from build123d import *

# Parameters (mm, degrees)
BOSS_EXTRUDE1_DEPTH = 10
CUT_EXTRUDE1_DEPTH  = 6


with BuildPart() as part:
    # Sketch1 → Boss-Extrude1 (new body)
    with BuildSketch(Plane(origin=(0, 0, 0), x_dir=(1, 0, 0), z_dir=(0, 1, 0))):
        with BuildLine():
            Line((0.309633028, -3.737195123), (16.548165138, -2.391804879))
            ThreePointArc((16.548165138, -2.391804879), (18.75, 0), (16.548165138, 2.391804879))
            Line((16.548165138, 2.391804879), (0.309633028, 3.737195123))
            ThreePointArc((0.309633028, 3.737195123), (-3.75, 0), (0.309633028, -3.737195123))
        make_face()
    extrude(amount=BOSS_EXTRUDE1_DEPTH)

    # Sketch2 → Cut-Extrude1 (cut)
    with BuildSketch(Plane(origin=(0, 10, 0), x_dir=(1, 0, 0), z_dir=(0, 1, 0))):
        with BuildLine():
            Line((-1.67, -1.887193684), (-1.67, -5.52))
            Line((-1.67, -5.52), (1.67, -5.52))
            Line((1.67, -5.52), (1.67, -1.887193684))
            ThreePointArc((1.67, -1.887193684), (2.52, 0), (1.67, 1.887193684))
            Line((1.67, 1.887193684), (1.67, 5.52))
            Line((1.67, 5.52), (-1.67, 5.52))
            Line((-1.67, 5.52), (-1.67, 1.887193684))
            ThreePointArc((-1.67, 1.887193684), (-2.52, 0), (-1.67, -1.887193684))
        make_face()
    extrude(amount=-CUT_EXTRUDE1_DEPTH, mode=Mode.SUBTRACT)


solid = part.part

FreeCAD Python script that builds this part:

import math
import FreeCAD as App
import Part
import Sketcher

V = App.Vector

doc = App.newDocument("Part")
body = doc.addObject("PartDesign::Body", "Body")

sketch1 = body.newObject("Sketcher::SketchObject", "Sketch")
sketch1.AttachmentSupport = (doc.getObject("XZ_Plane"), [""])
sketch1.MapMode = "FlatFace"
sketch1.addGeometry(Part.LineSegment(V(0.3, 3.7, 0), V(16.5, 2.4, 0)), False)
sketch1.addGeometry(Part.ArcOfCircle(Part.Circle(V(16.4, 0, 0), V(0, 0, 1), 2.4), math.radians(-85), math.radians(85)), False)
sketch1.addGeometry(Part.LineSegment(V(16.5, -2.4, 0), V(0.3, -3.7, 0)), False)
sketch1.addGeometry(Part.ArcOfCircle(Part.Circle(V(0, 0, 0), V(0, 0, 1), 3.8), math.radians(85), math.radians(275)), False)
sketch1.addConstraint(Sketcher.Constraint("Tangent", 0, 2, 1, 2))
sketch1.addConstraint(Sketcher.Constraint("Tangent", 1, 1, 2, 1))
sketch1.addConstraint(Sketcher.Constraint("Tangent", 2, 2, 3, 2))
sketch1.addConstraint(Sketcher.Constraint("Tangent", 3, 1, 0, 1))
sketch1.addConstraint(Sketcher.Constraint("Coincident", 3, 3, -1, 1))
sketch1.addConstraint(Sketcher.Constraint("PointOnObject", 1, 3, -1))
sketch1.addConstraint(Sketcher.Constraint("Radius", 1, 2.4))
sketch1.addConstraint(Sketcher.Constraint("Radius", 3, 3.75))
sketch1.addConstraint(Sketcher.Constraint("DistanceX", -1, 1, 1, 3, 16.35))
pad1 = body.newObject("PartDesign::Pad", "Pad")
pad1.Profile = sketch1
pad1.Length = 10
pad1.Reversed = True

sketch2 = body.newObject("Sketcher::SketchObject", "Sketch001")
sketch2.AttachmentSupport = (doc.getObject("XZ_Plane"), [""])
sketch2.MapMode = "FlatFace"
sketch2.AttachmentOffset = App.Placement(V(0, 0, -10), App.Rotation())
sketch2.addGeometry(Part.LineSegment(V(-1.7, 1.9, 0), V(-1.7, 5.5, 0)), False)
sketch2.addGeometry(Part.LineSegment(V(-1.7, 5.5, 0), V(1.7, 5.5, 0)), False)
sketch2.addGeometry(Part.LineSegment(V(1.7, 5.5, 0), V(1.7, 1.9, 0)), False)
sketch2.addGeometry(Part.ArcOfCircle(Part.Circle(V(0, 0, 0), V(0, 0, 1), 2.5), math.radians(-48), math.radians(48)), False)
sketch2.addGeometry(Part.LineSegment(V(1.7, -1.9, 0), V(1.7, -5.5, 0)), False)
sketch2.addGeometry(Part.LineSegment(V(1.7, -5.5, 0), V(-1.7, -5.5, 0)), False)
sketch2.addGeometry(Part.LineSegment(V(-1.7, -5.5, 0), V(-1.7, -1.9, 0)), False)
sketch2.addGeometry(Part.ArcOfCircle(Part.Circle(V(0, 0, 0), V(0, 0, 1), 2.5), math.radians(132), math.radians(228)), False)
sketch2.addConstraint(Sketcher.Constraint("Coincident", 0, 2, 1, 1))
sketch2.addConstraint(Sketcher.Constraint("Coincident", 1, 2, 2, 1))
sketch2.addConstraint(Sketcher.Constraint("Coincident", 2, 2, 3, 2))
sketch2.addConstraint(Sketcher.Constraint("Coincident", 3, 1, 4, 1))
sketch2.addConstraint(Sketcher.Constraint("Coincident", 4, 2, 5, 1))
sketch2.addConstraint(Sketcher.Constraint("Coincident", 5, 2, 6, 1))
sketch2.addConstraint(Sketcher.Constraint("Coincident", 6, 2, 7, 2))
sketch2.addConstraint(Sketcher.Constraint("Coincident", 7, 1, 0, 1))
sketch2.addConstraint(Sketcher.Constraint("Vertical", 0))
sketch2.addConstraint(Sketcher.Constraint("Horizontal", 1))
sketch2.addConstraint(Sketcher.Constraint("Vertical", 2))
sketch2.addConstraint(Sketcher.Constraint("Vertical", 4))
sketch2.addConstraint(Sketcher.Constraint("Horizontal", 5))
sketch2.addConstraint(Sketcher.Constraint("Vertical", 6))
sketch2.addConstraint(Sketcher.Constraint("Coincident", 3, 3, -1, 1))
sketch2.addConstraint(Sketcher.Constraint("Coincident", 7, 3, -1, 1))
sketch2.addConstraint(Sketcher.Constraint("Equal", 3, 7))
sketch2.addConstraint(Sketcher.Constraint("Symmetric", 0, 2, 4, 2, -1, 1))
sketch2.addConstraint(Sketcher.Constraint("Horizontal", 3, 1, 6, 2))
sketch2.addConstraint(Sketcher.Constraint("Horizontal", 2, 2, 7, 1))
sketch2.addConstraint(Sketcher.Constraint("Radius", 3, 2.52))
sketch2.addConstraint(Sketcher.Constraint("DistanceX", 1, 1, 1, 2, 3.34))
sketch2.addConstraint(Sketcher.Constraint("DistanceY", -1, 1, 0, 2, 5.52))
pocket1 = body.newObject("PartDesign::Pocket", "Pocket")
pocket1.Profile = sketch2
pocket1.Length = 6
pocket1.Reversed = True

doc.recompute()
